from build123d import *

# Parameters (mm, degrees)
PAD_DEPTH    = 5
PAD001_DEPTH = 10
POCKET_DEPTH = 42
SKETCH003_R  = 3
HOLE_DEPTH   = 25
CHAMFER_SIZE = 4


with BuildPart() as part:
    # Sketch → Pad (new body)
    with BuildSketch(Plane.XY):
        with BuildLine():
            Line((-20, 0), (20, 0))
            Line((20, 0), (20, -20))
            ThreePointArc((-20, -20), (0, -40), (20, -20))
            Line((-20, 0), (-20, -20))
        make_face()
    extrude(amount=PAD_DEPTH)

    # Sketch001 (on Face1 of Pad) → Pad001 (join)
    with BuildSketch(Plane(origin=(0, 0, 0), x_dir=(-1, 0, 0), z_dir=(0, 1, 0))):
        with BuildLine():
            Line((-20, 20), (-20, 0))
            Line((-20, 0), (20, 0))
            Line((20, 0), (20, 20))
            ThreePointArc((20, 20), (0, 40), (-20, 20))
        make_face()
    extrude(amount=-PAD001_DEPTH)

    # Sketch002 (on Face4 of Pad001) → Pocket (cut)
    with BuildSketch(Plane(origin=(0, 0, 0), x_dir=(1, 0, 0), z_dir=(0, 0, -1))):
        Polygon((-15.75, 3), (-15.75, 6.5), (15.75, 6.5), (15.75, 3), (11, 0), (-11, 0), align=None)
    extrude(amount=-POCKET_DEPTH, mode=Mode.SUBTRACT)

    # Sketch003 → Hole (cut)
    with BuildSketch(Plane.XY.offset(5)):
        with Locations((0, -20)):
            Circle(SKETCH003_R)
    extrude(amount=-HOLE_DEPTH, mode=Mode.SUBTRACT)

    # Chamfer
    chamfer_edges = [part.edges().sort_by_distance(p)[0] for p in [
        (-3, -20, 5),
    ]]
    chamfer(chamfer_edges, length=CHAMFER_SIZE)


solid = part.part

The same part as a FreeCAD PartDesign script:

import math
import FreeCAD as App
import Part
import Sketcher
from FreeCAD import Vector
Q = App.Units.Quantity


def edges_at(feature, points):
    """Names of the edges that pass closest to the given points."""
    edges = feature.Shape.Edges
    near = lambda p: min(range(len(edges)), key=lambda i: edges[i].distToShape(Part.Vertex(*p))[0])
    return sorted({f"Edge{near(p) + 1}" for p in points})

doc = App.newDocument("Part")
body = doc.addObject("PartDesign::Body", "Body")

# Sketch on XY plane
sketch1 = body.newObject("Sketcher::SketchObject", "Sketch")
sketch1.AttachmentSupport = (doc.getObject("XY_Plane"), [""])
sketch1.MapMode = "FlatFace"
sketch1.addGeometry([
    Part.LineSegment(Vector(20, 0, 0), Vector(-20, 0, 0)),
    Part.LineSegment(Vector(-20, 0, 0), Vector(-20, -20, 0)),
    Part.ArcOfCircle(Part.Circle(Vector(0, -20, 0), Vector(0, 0, 1), 20), math.radians(180), math.radians(360)),
    Part.LineSegment(Vector(20, -20, 0), Vector(20, 0, 0)),
], False)
sketch1.addConstraint([
    Sketcher.Constraint("Coincident", 0, 2, 1, 1),
    Sketcher.Constraint("Tangent", 1, 2, 2, 1),
    Sketcher.Constraint("Tangent", 2, 2, 3, 1),
    Sketcher.Constraint("Coincident", 3, 2, 0, 1),
    Sketcher.Constraint("Horizontal", 0),
    Sketcher.Constraint("Vertical", 1),
    Sketcher.Constraint("Vertical", 3),
    Sketcher.Constraint("Symmetric", 0, 2, 3, 2, -1, 1),
    Sketcher.Constraint("Radius", 2, Q("20 mm")),
    Sketcher.Constraint("DistanceY", 1, 2, 1, 1, Q("20 mm")),
])
pad1 = body.newObject("PartDesign::Pad", "Pad")
pad1.Profile = sketch1
pad1.Length = 5

# Sketch on XZ plane
sketch2 = body.newObject("Sketcher::SketchObject", "Sketch001")
sketch2.AttachmentSupport = (doc.getObject("XZ_Plane"), [""])
sketch2.MapMode = "FlatFace"
sketch2.addGeometry([
    Part.LineSegment(Vector(20, 20, 0), Vector(20, 0, 0)),
    Part.LineSegment(Vector(20, 0, 0), Vector(-20, 0, 0)),
    Part.LineSegment(Vector(-20, 0, 0), Vector(-20, 20, 0)),
    Part.ArcOfCircle(Part.Circle(Vector(0, 20, 0), Vector(0, 0, 1), 20), math.radians(0), math.radians(180)),
], False)
sketch2.addConstraint([
    Sketcher.Constraint("Coincident", 0, 2, 1, 1),
    Sketcher.Constraint("Coincident", 1, 2, 2, 1),
    Sketcher.Constraint("Tangent", 2, 2, 3, 2),
    Sketcher.Constraint("Tangent", 3, 1, 0, 1),
    Sketcher.Constraint("Vertical", 0),
    Sketcher.Constraint("Horizontal", 1),
    Sketcher.Constraint("Vertical", 2),
    Sketcher.Constraint("Symmetric", 0, 2, 1, 2, -1, 1),
    Sketcher.Constraint("Radius", 3, Q("20 mm")),
    Sketcher.Constraint("DistanceY", 0, 2, 0, 1, Q("20 mm")),
])
pad2 = body.newObject("PartDesign::Pad", "Pad001")
pad2.Profile = sketch2
pad2.Length = 10

# Sketch on XY plane
sketch3 = body.newObject("Sketcher::SketchObject", "Sketch002")
sketch3.AttachmentSupport = (doc.getObject("XY_Plane"), [""])
sketch3.MapMode = "FlatFace"
sketch3.addGeometry([
    Part.LineSegment(Vector(-15.75, -6.5, 0), Vector(-15.75, -3, 0)),  # 0
    Part.LineSegment(Vector(-15.75, -3, 0), Vector(-11, 0, 0)),  # 1
    Part.LineSegment(Vector(-11, 0, 0), Vector(11, 0, 0)),  # 2
    Part.LineSegment(Vector(11, 0, 0), Vector(15.75, -3, 0)),  # 3
    Part.LineSegment(Vector(15.75, -3, 0), Vector(15.75, -6.5, 0)),  # 4
    Part.LineSegment(Vector(15.75, -6.5, 0), Vector(-15.75, -6.5, 0)),  # 5
], False)
sketch3.addConstraint([
    Sketcher.Constraint("Coincident", 0, 2, 1, 1),
    Sketcher.Constraint("Coincident", 1, 2, 2, 1),
    Sketcher.Constraint("Coincident", 2, 2, 3, 1),
    Sketcher.Constraint("Coincident", 3, 2, 4, 1),
    Sketcher.Constraint("Coincident", 4, 2, 5, 1),
    Sketcher.Constraint("Coincident", 5, 2, 0, 1),
    Sketcher.Constraint("Vertical", 0),
    Sketcher.Constraint("Horizontal", 2),
    Sketcher.Constraint("Vertical", 4),
    Sketcher.Constraint("Horizontal", 5),
    Sketcher.Constraint("Symmetric", 1, 2, 2, 2, -1, 1),
    Sketcher.Constraint("Symmetric", 0, 2, 3, 2, -2),
    Sketcher.Constraint("DistanceX", 2, 1, 2, 2, Q("22 mm")),
    Sketcher.Constraint("DistanceX", 5, 2, 5, 1, Q("31.5 mm")),
    Sketcher.Constraint("DistanceY", 0, 1, 0, 2, Q("3.5 mm")),
    Sketcher.Constraint("DistanceY", 0, 2, -1, 1, Q("3 mm")),
])
pocket1 = body.newObject("PartDesign::Pocket", "Pocket")
pocket1.Profile = sketch3
pocket1.Length = 42
pocket1.Reversed = True

# Sketch on XY plane
sketch4 = body.newObject("Sketcher::SketchObject", "Sketch003")
sketch4.AttachmentSupport = (doc.getObject("XY_Plane"), [""])
sketch4.MapMode = "FlatFace"
sketch4.AttachmentOffset = App.Placement(Vector(0, 0, 5), App.Rotation())
sketch4.addGeometry(Part.Circle(Vector(0, -20, 0), Vector(0, 0, 1), 3), False)
sketch4.addConstraint([
    Sketcher.Constraint("PointOnObject", 0, 3, -2),
    Sketcher.Constraint("Diameter", 0, Q("6 mm")),
    Sketcher.Constraint("DistanceY", 0, 3, -1, 1, Q("20 mm")),
])
pocket2 = body.newObject("PartDesign::Pocket", "Pocket001")
pocket2.Profile = sketch4
pocket2.Length = 25
doc.recompute()

chamfer = body.newObject("PartDesign::Chamfer", "Chamfer")
chamfer.Base = (pocket2, edges_at(pocket2, [(-3, -20, 5)]))
chamfer.Size = 4

doc.recompute()
